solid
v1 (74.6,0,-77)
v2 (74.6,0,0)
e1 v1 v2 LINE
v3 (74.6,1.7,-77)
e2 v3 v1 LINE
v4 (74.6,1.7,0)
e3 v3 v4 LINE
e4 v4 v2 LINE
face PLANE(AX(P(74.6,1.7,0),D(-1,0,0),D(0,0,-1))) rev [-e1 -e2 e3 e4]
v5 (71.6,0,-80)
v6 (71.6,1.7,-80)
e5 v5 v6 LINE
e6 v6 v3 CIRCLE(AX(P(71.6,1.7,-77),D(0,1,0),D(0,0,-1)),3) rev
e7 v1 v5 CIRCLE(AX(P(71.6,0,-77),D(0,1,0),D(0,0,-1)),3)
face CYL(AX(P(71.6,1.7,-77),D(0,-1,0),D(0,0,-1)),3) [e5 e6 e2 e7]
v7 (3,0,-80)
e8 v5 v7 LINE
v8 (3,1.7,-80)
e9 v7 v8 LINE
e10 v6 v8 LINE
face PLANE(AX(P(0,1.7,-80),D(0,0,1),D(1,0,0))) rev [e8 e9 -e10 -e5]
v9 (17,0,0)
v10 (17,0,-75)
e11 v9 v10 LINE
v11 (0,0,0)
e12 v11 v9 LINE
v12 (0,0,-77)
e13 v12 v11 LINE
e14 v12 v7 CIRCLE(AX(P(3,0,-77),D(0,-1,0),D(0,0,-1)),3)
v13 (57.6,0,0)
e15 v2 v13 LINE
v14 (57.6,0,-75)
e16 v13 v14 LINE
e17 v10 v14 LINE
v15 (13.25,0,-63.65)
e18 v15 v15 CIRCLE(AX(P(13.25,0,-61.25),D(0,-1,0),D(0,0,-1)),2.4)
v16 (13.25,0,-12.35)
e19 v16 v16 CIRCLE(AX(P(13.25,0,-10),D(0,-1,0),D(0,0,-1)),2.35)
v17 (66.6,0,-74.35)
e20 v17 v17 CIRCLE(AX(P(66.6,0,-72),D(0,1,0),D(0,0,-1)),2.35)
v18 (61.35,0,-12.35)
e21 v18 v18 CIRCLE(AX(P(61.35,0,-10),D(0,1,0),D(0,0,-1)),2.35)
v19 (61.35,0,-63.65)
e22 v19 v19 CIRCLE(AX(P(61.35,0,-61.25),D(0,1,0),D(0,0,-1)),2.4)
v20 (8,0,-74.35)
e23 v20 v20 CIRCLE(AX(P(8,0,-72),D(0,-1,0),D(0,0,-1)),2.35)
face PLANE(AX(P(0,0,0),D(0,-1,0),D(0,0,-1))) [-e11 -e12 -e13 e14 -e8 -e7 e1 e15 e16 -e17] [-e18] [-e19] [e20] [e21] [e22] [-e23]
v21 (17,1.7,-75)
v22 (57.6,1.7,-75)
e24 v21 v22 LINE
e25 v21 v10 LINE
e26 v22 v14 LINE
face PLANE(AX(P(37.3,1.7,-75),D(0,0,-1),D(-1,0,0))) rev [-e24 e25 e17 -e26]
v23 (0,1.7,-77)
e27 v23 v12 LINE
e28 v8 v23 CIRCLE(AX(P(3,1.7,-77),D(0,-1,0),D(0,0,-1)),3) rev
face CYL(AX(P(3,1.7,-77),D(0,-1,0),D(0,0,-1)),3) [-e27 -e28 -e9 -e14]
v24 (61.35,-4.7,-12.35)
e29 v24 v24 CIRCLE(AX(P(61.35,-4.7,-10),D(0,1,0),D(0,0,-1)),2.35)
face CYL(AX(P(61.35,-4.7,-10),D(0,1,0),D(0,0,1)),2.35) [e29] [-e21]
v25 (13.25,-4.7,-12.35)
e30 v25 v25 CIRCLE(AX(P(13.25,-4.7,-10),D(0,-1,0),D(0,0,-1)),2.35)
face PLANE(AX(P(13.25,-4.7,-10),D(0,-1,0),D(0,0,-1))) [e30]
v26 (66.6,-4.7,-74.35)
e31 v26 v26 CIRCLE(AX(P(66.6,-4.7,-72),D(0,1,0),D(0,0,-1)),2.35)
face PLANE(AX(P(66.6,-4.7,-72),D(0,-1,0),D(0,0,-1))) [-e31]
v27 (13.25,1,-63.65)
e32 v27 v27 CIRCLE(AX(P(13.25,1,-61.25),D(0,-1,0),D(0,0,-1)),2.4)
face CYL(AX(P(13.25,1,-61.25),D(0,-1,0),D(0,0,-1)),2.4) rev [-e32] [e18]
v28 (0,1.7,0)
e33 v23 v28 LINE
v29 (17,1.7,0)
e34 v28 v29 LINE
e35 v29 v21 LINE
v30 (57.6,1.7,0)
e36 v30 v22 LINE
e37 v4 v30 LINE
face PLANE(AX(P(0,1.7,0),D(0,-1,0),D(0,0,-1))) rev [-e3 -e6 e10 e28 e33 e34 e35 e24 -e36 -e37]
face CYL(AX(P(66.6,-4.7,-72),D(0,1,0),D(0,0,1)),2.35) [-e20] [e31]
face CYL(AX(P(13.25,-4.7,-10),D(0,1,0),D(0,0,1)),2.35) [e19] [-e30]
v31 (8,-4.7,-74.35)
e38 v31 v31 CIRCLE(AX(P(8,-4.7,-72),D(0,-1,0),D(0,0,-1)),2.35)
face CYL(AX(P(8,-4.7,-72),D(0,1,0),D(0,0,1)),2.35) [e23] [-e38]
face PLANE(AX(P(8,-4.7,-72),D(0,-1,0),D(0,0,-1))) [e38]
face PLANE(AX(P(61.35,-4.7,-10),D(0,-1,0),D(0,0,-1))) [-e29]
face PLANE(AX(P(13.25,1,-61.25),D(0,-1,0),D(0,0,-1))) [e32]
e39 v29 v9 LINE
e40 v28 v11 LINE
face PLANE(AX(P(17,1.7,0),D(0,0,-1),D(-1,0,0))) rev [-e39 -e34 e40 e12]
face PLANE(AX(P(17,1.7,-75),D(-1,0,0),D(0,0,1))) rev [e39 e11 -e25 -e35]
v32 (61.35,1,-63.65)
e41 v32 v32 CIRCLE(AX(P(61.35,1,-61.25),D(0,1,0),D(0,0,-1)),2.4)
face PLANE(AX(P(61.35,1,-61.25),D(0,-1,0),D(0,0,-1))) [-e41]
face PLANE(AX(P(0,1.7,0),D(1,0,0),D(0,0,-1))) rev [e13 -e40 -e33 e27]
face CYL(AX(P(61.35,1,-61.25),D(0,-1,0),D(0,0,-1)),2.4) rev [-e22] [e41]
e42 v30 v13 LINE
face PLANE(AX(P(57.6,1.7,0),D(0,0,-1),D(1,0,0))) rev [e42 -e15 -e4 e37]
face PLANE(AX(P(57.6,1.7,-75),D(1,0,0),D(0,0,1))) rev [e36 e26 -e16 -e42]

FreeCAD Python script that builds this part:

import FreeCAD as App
import Part
import Sketcher

V = App.Vector
Q = App.Units.Quantity


def edges_at(feature, points):
    """Names of the edges that pass closest to the given points."""
    edges = feature.Shape.Edges
    near = lambda p: min(range(len(edges)), key=lambda i: edges[i].distToShape(Part.Vertex(*p))[0])
    return sorted({f"Edge{near(p) + 1}" for p in points})

doc = App.newDocument("Part")
body = doc.addObject("PartDesign::Body", "Body")

# Sketch on XZ plane
sketch1 = body.newObject("Sketcher::SketchObject", "Sketch")
sketch1.AttachmentSupport = (doc.getObject("XZ_Plane"), [""])
sketch1.MapMode = "FlatFace"
sketch1.addGeometry([
    Part.LineSegment(V(0, -80, 0), V(0, 0, 0)),  # 0
    Part.LineSegment(V(0, 0, 0), V(17, 0, 0)),  # 1
    Part.LineSegment(V(17, 0, 0), V(17, -75, 0)),  # 2
    Part.LineSegment(V(17, -75, 0), V(37, -75, 0)),  # 3
    Part.LineSegment(V(37, -75, 0), V(37, -80, 0)),  # 4
    Part.LineSegment(V(37, -80, 0), V(0, -80, 0)),  # 5
], False)
sketch1.addConstraint([
    Sketcher.Constraint("Coincident", 0, 2, 1, 1),
    Sketcher.Constraint("Coincident", 1, 2, 2, 1),
    Sketcher.Constraint("Coincident", 2, 2, 3, 1),
    Sketcher.Constraint("Coincident", 3, 2, 4, 1),
    Sketcher.Constraint("Coincident", 4, 2, 5, 1),
    Sketcher.Constraint("Coincident", 5, 2, 0, 1),
    Sketcher.Constraint("Vertical", 0),
    Sketcher.Constraint("Horizontal", 1),
    Sketcher.Constraint("Vertical", 2),
    Sketcher.Constraint("Horizontal", 3),
    Sketcher.Constraint("Vertical", 4),
    Sketcher.Constraint("Horizontal", 5),
    Sketcher.Constraint("Coincident", 0, 2, -1, 1),
    Sketcher.Constraint("DistanceX", 1, 1, 1, 2, Q("17 mm")),
    Sketcher.Constraint("DistanceY", 0, 1, 0, 2, Q("80 mm")),
    Sketcher.Constraint("DistanceY", 2, 2, 2, 1, Q("75 mm")),
    Sketcher.Constraint("DistanceX", 3, 1, 3, 2, Q("20.3 mm")),
])
pad1 = body.newObject("PartDesign::Pad", "Pad")
pad1.Profile = sketch1
pad1.Length = 1.7
pad1.Reversed = True

# Sketch on XZ plane
sketch2 = body.newObject("Sketcher::SketchObject", "Sketch001")
sketch2.AttachmentSupport = (doc.getObject("XZ_Plane"), [""])
sketch2.MapMode = "FlatFace"
sketch2.addGeometry([
    Part.Circle(V(13.2, -10, 0), V(0, 0, 1), 2.4),
    Part.Circle(V(8, -72, 0), V(0, 0, 1), 2.4),
], False)
sketch2.addConstraint([
    Sketcher.Constraint("Equal", 0, 1),
    Sketcher.Constraint("Diameter", 0, Q("4.7 mm")),
    Sketcher.Constraint("DistanceY", 0, 3, -1, 1, Q("10 mm")),
    Sketcher.Constraint("DistanceX", -1, 1, 1, 3, Q("8 mm")),
    Sketcher.Constraint("DistanceY", 1, 3, -1, 1, Q("72 mm")),
    Sketcher.Constraint("DistanceX", -1, 1, 0, 3, Q("13.25 mm")),
])
pad2 = body.newObject("PartDesign::Pad", "Pad001")
pad2.Profile = sketch2
pad2.Length = 4.7
doc.recompute()

fillet = body.newObject("PartDesign::Fillet", "Fillet")
fillet.Base = (pad2, edges_at(pad2, [(0, 0.85, -80)]))
fillet.Radius = 3

# Sketch on XZ plane
sketch3 = body.newObject("Sketcher::SketchObject", "Sketch002")
sketch3.AttachmentSupport = (doc.getObject("XZ_Plane"), [""])
sketch3.MapMode = "FlatFace"
sketch3.addGeometry(Part.Circle(V(13.2, -61.2, 0), V(0, 0, 1), 2.4), False)
sketch3.addConstraint([
    Sketcher.Constraint("Diameter", 0, Q("4.8 mm")),
    Sketcher.Constraint("DistanceX", -1, 1, 0, 3, Q("13.25 mm")),
    Sketcher.Constraint("DistanceY", 0, 3, -1, 1, Q("61.25 mm")),
])
pocket1 = body.newObject("PartDesign::Pocket", "Pocket")
pocket1.Profile = sketch3
pocket1.Length = 1
body2 = doc.addObject("PartDesign::Body", "Body001")
doc.recompute()

body2.BaseFeature = body
doc.recompute()

mirroring = doc.addObject("Part::Mirroring", "Mirroring")
mirroring.Source = body
mirroring.Base = V(37.3, 1.7, -80)
mirroring.Normal = V(-1, 0, 0)
body3 = doc.addObject("PartDesign::Body", "Body002")
body3.BaseFeature = mirroring
boolean = body2.newObject("PartDesign::Boolean", "Boolean")
boolean.Type = "Fuse"
boolean.addObjects([body3])
doc.recompute()
mirroring.Visibility = False

doc.recompute()
